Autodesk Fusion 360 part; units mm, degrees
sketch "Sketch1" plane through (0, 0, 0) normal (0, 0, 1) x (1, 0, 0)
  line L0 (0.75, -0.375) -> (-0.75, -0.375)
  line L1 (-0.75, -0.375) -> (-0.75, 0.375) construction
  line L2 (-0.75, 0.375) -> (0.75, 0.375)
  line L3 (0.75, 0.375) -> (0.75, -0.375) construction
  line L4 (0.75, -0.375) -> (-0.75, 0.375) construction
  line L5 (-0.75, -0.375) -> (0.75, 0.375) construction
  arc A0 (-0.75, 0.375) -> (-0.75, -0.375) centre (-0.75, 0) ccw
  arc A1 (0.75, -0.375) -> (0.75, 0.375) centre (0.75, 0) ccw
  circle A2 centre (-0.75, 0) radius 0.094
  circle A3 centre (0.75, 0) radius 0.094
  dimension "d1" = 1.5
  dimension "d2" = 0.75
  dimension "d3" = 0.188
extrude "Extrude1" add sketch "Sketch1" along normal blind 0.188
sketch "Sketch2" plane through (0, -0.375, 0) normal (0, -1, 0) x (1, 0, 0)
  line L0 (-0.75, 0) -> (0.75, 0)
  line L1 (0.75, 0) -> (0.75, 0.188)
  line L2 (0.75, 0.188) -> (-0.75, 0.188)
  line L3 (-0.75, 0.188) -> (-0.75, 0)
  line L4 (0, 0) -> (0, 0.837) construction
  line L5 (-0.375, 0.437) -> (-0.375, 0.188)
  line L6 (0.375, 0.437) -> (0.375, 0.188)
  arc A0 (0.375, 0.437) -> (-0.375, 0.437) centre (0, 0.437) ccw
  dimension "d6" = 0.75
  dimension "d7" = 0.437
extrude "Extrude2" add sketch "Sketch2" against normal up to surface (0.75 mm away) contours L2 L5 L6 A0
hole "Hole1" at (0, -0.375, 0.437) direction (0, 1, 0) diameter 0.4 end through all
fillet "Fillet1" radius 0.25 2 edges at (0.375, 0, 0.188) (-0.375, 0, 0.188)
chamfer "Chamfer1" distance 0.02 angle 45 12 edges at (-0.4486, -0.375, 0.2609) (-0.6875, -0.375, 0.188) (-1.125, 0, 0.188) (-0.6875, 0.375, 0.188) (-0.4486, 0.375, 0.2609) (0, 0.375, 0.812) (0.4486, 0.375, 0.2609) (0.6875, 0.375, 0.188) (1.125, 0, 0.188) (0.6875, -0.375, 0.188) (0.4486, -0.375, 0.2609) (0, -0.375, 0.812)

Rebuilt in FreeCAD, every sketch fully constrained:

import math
import FreeCAD as App
import Part
import Sketcher

V = App.Vector
Q = App.Units.Quantity


def edges_at(feature, points):
    """Names of the edges that pass closest to the given points."""
    edges = feature.Shape.Edges
    near = lambda p: min(range(len(edges)), key=lambda i: edges[i].distToShape(Part.Vertex(*p))[0])
    return sorted({f"Edge{near(p) + 1}" for p in points})

doc = App.newDocument("Part")
body = doc.addObject("PartDesign::Body", "Body")

# Sketch on XY plane
sketch1 = body.newObject("Sketcher::SketchObject", "Sketch")
sketch1.AttachmentSupport = (doc.getObject("XY_Plane"), [""])
sketch1.MapMode = "FlatFace"
sketch1.addGeometry(Part.LineSegment(V(-0.75, -0.38, 0), V(0.75, -0.38, 0)), False)
sketch1.addGeometry(Part.ArcOfCircle(Part.Circle(V(0.75, 0, 0), V(0, 0, 1), 0.38), math.radians(-90), math.radians(90)), False)
sketch1.addGeometry(Part.LineSegment(V(0.75, 0.38, 0), V(-0.75, 0.38, 0)), False)
sketch1.addGeometry(Part.ArcOfCircle(Part.Circle(V(-0.75, 0, 0), V(0, 0, 1), 0.38), math.radians(90), math.radians(270)), False)
sketch1.addGeometry(Part.Circle(V(-0.75, 0, 0), V(0, 0, 1), 0.09), False)
sketch1.addGeometry(Part.Circle(V(0.75, 0, 0), V(0, 0, 1), 0.09), False)
sketch1.addConstraint(Sketcher.Constraint("Tangent", 0, 2, 1, 1))
sketch1.addConstraint(Sketcher.Constraint("Tangent", 1, 2, 2, 1))
sketch1.addConstraint(Sketcher.Constraint("Tangent", 2, 2, 3, 1))
sketch1.addConstraint(Sketcher.Constraint("Tangent", 3, 2, 0, 1))
sketch1.addConstraint(Sketcher.Constraint("Horizontal", 0))
sketch1.addConstraint(Sketcher.Constraint("Horizontal", 2))
sketch1.addConstraint(Sketcher.Constraint("Coincident", 4, 3, 3, 3))
sketch1.addConstraint(Sketcher.Constraint("Coincident", 5, 3, 1, 3))
sketch1.addConstraint(Sketcher.Constraint("Equal", 4, 5))
sketch1.addConstraint(Sketcher.Constraint("Symmetric", 1, 3, 3, 3, -1, 1))
sketch1.addConstraint(Sketcher.Constraint("Diameter", 4, Q("0.188 mm")))
sketch1.addConstraint(Sketcher.Constraint("DistanceX", 0, 1, 0, 2, Q("1.5 mm")))
sketch1.addConstraint(Sketcher.Constraint("Radius", 1, Q("0.375 mm")))
pad1 = body.newObject("PartDesign::Pad", "Pad")
pad1.Profile = sketch1
pad1.Length = 0.188

# Sketch on XZ plane
sketch2 = body.newObject("Sketcher::SketchObject", "Sketch001")
sketch2.AttachmentSupport = (doc.getObject("XZ_Plane"), [""])
sketch2.MapMode = "FlatFace"
sketch2.AttachmentOffset = App.Placement(V(0, 0, 0.375), App.Rotation())
sketch2.addGeometry(Part.LineSegment(V(-0.38, 0.44, 0), V(-0.38, 0.19, 0)), False)
sketch2.addGeometry(Part.LineSegment(V(-0.38, 0.19, 0), V(0.38, 0.19, 0)), False)
sketch2.addGeometry(Part.LineSegment(V(0.38, 0.19, 0), V(0.38, 0.44, 0)), False)
sketch2.addGeometry(Part.ArcOfCircle(Part.Circle(V(0, 0.44, 0), V(0, 0, 1), 0.38), math.radians(0), math.radians(180)), False)
sketch2.addConstraint(Sketcher.Constraint("Coincident", 0, 2, 1, 1))
sketch2.addConstraint(Sketcher.Constraint("Coincident", 1, 2, 2, 1))
sketch2.addConstraint(Sketcher.Constraint("Tangent", 2, 2, 3, 1))
sketch2.addConstraint(Sketcher.Constraint("Tangent", 3, 2, 0, 1))
sketch2.addConstraint(Sketcher.Constraint("Vertical", 0))
sketch2.addConstraint(Sketcher.Constraint("Horizontal", 1))
sketch2.addConstraint(Sketcher.Constraint("Vertical", 2))
sketch2.addConstraint(Sketcher.Constraint("PointOnObject", 3, 3, -2))
sketch2.addConstraint(Sketcher.Constraint("Radius", 3, Q("0.375 mm")))
sketch2.addConstraint(Sketcher.Constraint("DistanceY", -1, 1, 3, 3, Q("0.437 mm")))
sketch2.addConstraint(Sketcher.Constraint("DistanceY", 0, 2, 0, 1, Q("0.249 mm")))
pad2 = body.newObject("PartDesign::Pad", "Pad001")
pad2.Profile = sketch2
pad2.Length = 0.75
pad2.Reversed = True

# Sketch on XZ plane
sketch3 = body.newObject("Sketcher::SketchObject", "Sketch002")
sketch3.AttachmentSupport = (doc.getObject("XZ_Plane"), [""])
sketch3.MapMode = "FlatFace"
sketch3.AttachmentOffset = App.Placement(V(0, 0, 0.375), App.Rotation())
sketch3.addGeometry(Part.Circle(V(0, 0.44, 0), V(0, 0, 1), 0.2), False)
sketch3.addConstraint(Sketcher.Constraint("PointOnObject", 0, 3, -2))
sketch3.addConstraint(Sketcher.Constraint("Diameter", 0, Q("0.4 mm")))
sketch3.addConstraint(Sketcher.Constraint("DistanceY", -1, 1, 0, 3, Q("0.437 mm")))
doc.recompute()
hole = body.newObject("PartDesign::Hole", "Hole")
hole.Profile = sketch3
hole.ThreadType = "None"
hole.Diameter = 0.4
hole.DepthType = "ThroughAll"
doc.recompute()

fillet = body.newObject("PartDesign::Fillet", "Fillet")
fillet.Base = (hole, edges_at(hole, [(0.375, 0, 0.188), (-0.375, 0, 0.188)]))
fillet.Radius = 0.25
doc.recompute()

chamfer = body.newObject("PartDesign::Chamfer", "Chamfer")
chamfer.Base = (fillet, edges_at(fillet, [
    (-0.449, -0.375, 0.261),
    (-0.688, -0.375, 0.188),
    (-1.125, 0, 0.188),
    (-0.688, 0.375, 0.188),
    (-0.449, 0.375, 0.261),
    (0, 0.375, 0.812),
    (0.449, 0.375, 0.261),
    (0.688, 0.375, 0.188),
    (1.125, 0, 0.188),
    (0.688, -0.375, 0.188),
    (0.449, -0.375, 0.261),
    (0, -0.375, 0.812),
]))
chamfer.Size = 0.02

doc.recompute()
